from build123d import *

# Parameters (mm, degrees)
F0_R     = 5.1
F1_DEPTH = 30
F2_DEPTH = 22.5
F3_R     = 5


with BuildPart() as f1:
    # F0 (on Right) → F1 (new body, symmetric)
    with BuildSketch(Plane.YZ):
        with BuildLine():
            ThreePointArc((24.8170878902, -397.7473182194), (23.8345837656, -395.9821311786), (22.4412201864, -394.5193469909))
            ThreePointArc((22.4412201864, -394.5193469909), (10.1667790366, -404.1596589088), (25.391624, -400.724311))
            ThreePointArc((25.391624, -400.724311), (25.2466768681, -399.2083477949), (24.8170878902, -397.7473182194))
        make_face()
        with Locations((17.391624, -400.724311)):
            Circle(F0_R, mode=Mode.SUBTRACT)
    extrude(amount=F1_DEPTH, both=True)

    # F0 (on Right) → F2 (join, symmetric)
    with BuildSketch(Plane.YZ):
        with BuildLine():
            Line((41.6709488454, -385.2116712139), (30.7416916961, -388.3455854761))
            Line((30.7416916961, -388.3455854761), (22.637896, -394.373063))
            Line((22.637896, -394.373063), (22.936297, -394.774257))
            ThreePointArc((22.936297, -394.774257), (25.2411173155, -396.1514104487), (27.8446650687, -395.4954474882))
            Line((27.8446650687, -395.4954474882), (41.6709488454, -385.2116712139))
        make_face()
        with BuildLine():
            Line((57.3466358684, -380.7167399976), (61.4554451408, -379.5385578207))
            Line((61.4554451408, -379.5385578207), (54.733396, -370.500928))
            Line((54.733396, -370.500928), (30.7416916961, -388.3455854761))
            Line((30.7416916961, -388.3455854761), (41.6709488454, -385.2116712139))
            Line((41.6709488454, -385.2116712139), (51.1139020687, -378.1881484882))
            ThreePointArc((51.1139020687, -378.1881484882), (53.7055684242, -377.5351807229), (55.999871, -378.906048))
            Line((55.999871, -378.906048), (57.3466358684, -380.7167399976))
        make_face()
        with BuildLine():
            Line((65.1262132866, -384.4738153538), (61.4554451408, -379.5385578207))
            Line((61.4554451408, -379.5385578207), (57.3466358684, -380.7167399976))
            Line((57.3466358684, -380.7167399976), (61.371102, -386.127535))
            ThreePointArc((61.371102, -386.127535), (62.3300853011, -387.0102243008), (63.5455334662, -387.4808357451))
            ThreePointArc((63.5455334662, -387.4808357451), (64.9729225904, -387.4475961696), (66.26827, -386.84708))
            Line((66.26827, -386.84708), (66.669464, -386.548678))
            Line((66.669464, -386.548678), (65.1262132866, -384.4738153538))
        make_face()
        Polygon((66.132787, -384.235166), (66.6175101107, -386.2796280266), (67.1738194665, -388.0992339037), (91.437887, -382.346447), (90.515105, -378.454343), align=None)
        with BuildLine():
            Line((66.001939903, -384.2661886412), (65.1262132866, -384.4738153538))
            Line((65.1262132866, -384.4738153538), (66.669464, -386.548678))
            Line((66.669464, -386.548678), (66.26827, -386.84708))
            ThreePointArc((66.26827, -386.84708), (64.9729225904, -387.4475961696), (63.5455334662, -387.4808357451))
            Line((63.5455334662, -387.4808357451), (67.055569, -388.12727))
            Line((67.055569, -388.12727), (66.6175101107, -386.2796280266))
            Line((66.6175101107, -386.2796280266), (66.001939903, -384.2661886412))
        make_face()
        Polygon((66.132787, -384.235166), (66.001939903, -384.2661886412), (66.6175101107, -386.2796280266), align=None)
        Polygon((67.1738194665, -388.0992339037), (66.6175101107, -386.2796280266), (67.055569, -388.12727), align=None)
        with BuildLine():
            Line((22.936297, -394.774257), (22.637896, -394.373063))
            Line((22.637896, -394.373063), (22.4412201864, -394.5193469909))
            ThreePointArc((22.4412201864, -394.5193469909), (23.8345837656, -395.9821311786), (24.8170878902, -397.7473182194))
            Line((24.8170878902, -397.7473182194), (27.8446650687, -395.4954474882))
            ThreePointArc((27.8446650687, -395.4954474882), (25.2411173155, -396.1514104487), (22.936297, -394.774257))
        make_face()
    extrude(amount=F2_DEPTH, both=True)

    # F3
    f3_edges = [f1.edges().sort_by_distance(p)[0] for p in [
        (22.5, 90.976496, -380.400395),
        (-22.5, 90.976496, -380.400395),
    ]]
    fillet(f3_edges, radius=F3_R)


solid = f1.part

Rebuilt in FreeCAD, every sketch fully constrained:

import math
import FreeCAD as App
import Part
import Sketcher

V = App.Vector
Q = App.Units.Quantity


def edges_at(feature, points):
    """Names of the edges that pass closest to the given points."""
    edges = feature.Shape.Edges
    near = lambda p: min(range(len(edges)), key=lambda i: edges[i].distToShape(Part.Vertex(*p))[0])
    return sorted({f"Edge{near(p) + 1}" for p in points})

doc = App.newDocument("Part")
params = doc.addObject("Spreadsheet::Sheet", "Params")
for row, (alias, value) in enumerate([
    ("sketch1_radius", "8 mm"),
    ("sketch1_diameter", "10.2 mm"),
    ("pad1_length", "60 mm"),
    ("sketch2_radius", "8 mm"),
    ("sketch2_radius2", "3.500001 mm"),
    ("sketch2_length", "4 mm"),
    ("pad2_length", "45 mm"),
    ("fillet_radius", "5 mm"),
], start=1):
    params.set(f"A{row}", alias)
    params.set(f"B{row}", "=" + value)
    params.setAlias(f"B{row}", alias)

body = doc.addObject("PartDesign::Body", "Body")

# Sketch on YZ plane
sketch1 = doc.addObject("Sketcher::SketchObject", "Sketch")
body.addObject(sketch1)
sketch1.AttachmentSupport = (doc.YZ_Plane, [""])
sketch1.MapMode = "FlatFace"
sketch1.addGeometry([
    Part.ArcOfCircle(Part.Circle(V(17.4, -400.7, 0), V(0, 0, 1), 8), math.radians(22), math.radians(51)),
    Part.ArcOfCircle(Part.Circle(V(17.4, -400.7, 0), V(0, 0, 1), 8), math.radians(51), math.radians(360)),
    Part.ArcOfCircle(Part.Circle(V(17.4, -400.7, 0), V(0, 0, 1), 8), math.radians(0), math.radians(22)),
    Part.Circle(V(17.4, -400.7, 0), V(0, 0, 1), 5.1),
], False)
sketch1.addConstraint([
    Sketcher.Constraint("Tangent", 0, 2, 1, 1),
    Sketcher.Constraint("Tangent", 1, 2, 2, 1),
    Sketcher.Constraint("Tangent", 2, 2, 0, 1),
    Sketcher.Constraint("Coincident", 3, 3, 0, 3),
    Sketcher.Constraint("Horizontal", 3, 3, 1, 2),
    Sketcher.Constraint("Radius", 0, Q("8 mm")),
    Sketcher.Constraint("Diameter", 3, Q("10.2 mm")),
    Sketcher.Constraint("DistanceY", 0, 3, -1, 1, Q("400.724311 mm")),
    Sketcher.Constraint("DistanceX", -1, 1, 0, 2, Q("22.44122 mm")),
    Sketcher.Constraint("DistanceY", 2, 2, -1, 1, Q("397.747318 mm")),
    Sketcher.Constraint("DistanceY", 2, 2, 0, 2, Q("3.227971 mm")),
])
sketch1.setExpression("Constraints[5]", "Params.sketch1_radius")
sketch1.setExpression("Constraints[6]", "Params.sketch1_diameter")
pad1 = doc.addObject("PartDesign::Pad", "Pad")
body.addObject(pad1)
pad1.Profile = sketch1
pad1.setExpression("Length", "Params.pad1_length")
pad1.Midplane = True

# Sketch on YZ plane
sketch2 = doc.addObject("Sketcher::SketchObject", "Sketch001")
body.addObject(sketch2)
sketch2.AttachmentSupport = (doc.YZ_Plane, [""])
sketch2.MapMode = "FlatFace"
sketch2.addGeometry([
    Part.LineSegment(V(30.741692, -388.345585, 0), V(22.637896, -394.373063, 0)),  # 0
    Part.LineSegment(V(22.637896, -394.373063, 0), V(22.44122, -394.519347, 0)),  # 1
    Part.ArcOfCircle(Part.Circle(V(17.391624, -400.724311, 0), V(0, 0, 1), 8), math.radians(21.846676), math.radians(50.861323)),  # 2
    Part.LineSegment(V(24.817088, -397.747318, 0), V(27.844665, -395.495447, 0)),  # 3
    Part.LineSegment(V(27.844665, -395.495447, 0), V(41.670949, -385.211671, 0)),  # 4
    Part.LineSegment(V(41.670949, -385.211671, 0), V(51.113902, -378.188148, 0)),  # 5
    Part.ArcOfCircle(Part.Circle(V(53.197937, -380.990082, 0), V(0, 0, 1), 3.491995), math.radians(36.641283), math.radians(126.641301)),  # 6
    Part.LineSegment(V(55.999871, -378.906048, 0), V(57.346636, -380.71674, 0)),  # 7
    Part.LineSegment(V(57.346636, -380.71674, 0), V(61.371102, -386.127535, 0)),  # 8
    Part.ArcOfCircle(Part.Circle(V(64.179459, -384.038723, 0), V(0, 0, 1), 3.500001), math.radians(-143.358697), math.radians(-100.435088)),  # 9
    Part.LineSegment(V(63.545533, -387.480836, 0), V(67.055569, -388.12727, 0)),  # 10
    Part.LineSegment(V(67.055569, -388.12727, 0), V(67.173819, -388.099234, 0)),  # 11
    Part.LineSegment(V(67.173819, -388.099234, 0), V(91.437887, -382.346447, 0)),  # 12
    Part.LineSegment(V(91.437887, -382.346447, 0), V(90.515105, -378.454343, 0)),  # 13
    Part.LineSegment(V(90.515105, -378.454343, 0), V(66.132787, -384.235166, 0)),  # 14
    Part.LineSegment(V(66.132787, -384.235166, 0), V(66.00194, -384.266189, 0)),  # 15
    Part.LineSegment(V(66.00194, -384.266189, 0), V(65.126213, -384.473815, 0)),  # 16
    Part.LineSegment(V(65.126213, -384.473815, 0), V(61.455445, -379.538558, 0)),  # 17
    Part.LineSegment(V(61.455445, -379.538558, 0), V(54.733396, -370.500928, 0)),  # 18
    Part.LineSegment(V(54.733396, -370.500928, 0), V(30.741692, -388.345585, 0)),  # 19
], False)
sketch2.addConstraint([
    Sketcher.Constraint("Coincident", 0, 2, 1, 1),
    Sketcher.Constraint("Coincident", 1, 2, 2, 2),
    Sketcher.Constraint("Coincident", 2, 1, 3, 1),
    Sketcher.Constraint("Coincident", 3, 2, 4, 1),
    Sketcher.Constraint("Coincident", 4, 2, 5, 1),
    Sketcher.Constraint("Coincident", 5, 2, 6, 2),
    Sketcher.Constraint("Coincident", 6, 1, 7, 1),
    Sketcher.Constraint("Coincident", 7, 2, 8, 1),
    Sketcher.Constraint("Coincident", 8, 2, 9, 1),
    Sketcher.Constraint("Coincident", 9, 2, 10, 1),
    Sketcher.Constraint("Coincident", 10, 2, 11, 1),
    Sketcher.Constraint("Coincident", 11, 2, 12, 1),
    Sketcher.Constraint("Coincident", 12, 2, 13, 1),
    Sketcher.Constraint("Coincident", 13, 2, 14, 1),
    Sketcher.Constraint("Coincident", 14, 2, 15, 1),
    Sketcher.Constraint("Coincident", 15, 2, 16, 1),
    Sketcher.Constraint("Coincident", 16, 2, 17, 1),
    Sketcher.Constraint("Coincident", 17, 2, 18, 1),
    Sketcher.Constraint("Coincident", 18, 2, 19, 1),
    Sketcher.Constraint("Coincident", 19, 2, 0, 1),
    Sketcher.Constraint("Radius", 2, Q("8 mm")),
    Sketcher.Constraint("Radius", 9, Q("3.500001 mm")),
    Sketcher.Constraint("Distance", 13, Q("4 mm")),
    Sketcher.Constraint("Radius", 6, Q("3.491995 mm")),
    Sketcher.Constraint("DistanceY", 3, 2, 1, 2, Q("0.9761 mm")),
    Sketcher.Constraint("DistanceY", 3, 2, 5, 2, Q("17.307299 mm")),
    Sketcher.Constraint("DistanceY", 6, 1, 5, 2, Q("0.7179 mm")),
    Sketcher.Constraint("DistanceX", 6, 3, 7, 2, Q("4.148699 mm")),
    Sketcher.Constraint("DistanceX", 5, 2, 8, 2, Q("10.2572 mm")),
    Sketcher.Constraint("DistanceY", 9, 2, 8, 2, Q("1.353301 mm")),
    Sketcher.Constraint("DistanceY", 11, 2, 9, 2, Q("0.618398 mm")),
    Sketcher.Constraint("Distance", 4, Q("17.23143 mm")),
    Sketcher.Constraint("Distance", 5, Q("11.76857 mm")),
    Sketcher.Constraint("Distance", 7, Q("2.25663 mm")),
    Sketcher.Constraint("Distance", 8, Q("6.743369 mm")),
    Sketcher.Constraint("Distance", 11, Q("0.121529 mm")),
    Sketcher.Constraint("Distance", 12, Q("24.93671 mm")),
    Sketcher.Constraint("Distance", 14, Q("25.058239 mm")),
    Sketcher.Constraint("DistanceY", 2, 3, -1, 1, Q("400.724311 mm")),
    Sketcher.Constraint("DistanceY", 6, 3, -1, 1, Q("380.990082 mm")),
    Sketcher.Constraint("DistanceX", -1, 1, 9, 3, Q("64.179459 mm")),
    Sketcher.Constraint("DistanceX", -1, 1, 1, 2, Q("22.44122 mm")),
    Sketcher.Constraint("DistanceY", 2, 1, -1, 1, Q("397.747318 mm")),
    Sketcher.Constraint("DistanceX", -1, 1, 4, 2, Q("41.670949 mm")),
    Sketcher.Constraint("DistanceY", 4, 2, -1, 1, Q("385.211671 mm")),
    Sketcher.Constraint("DistanceY", 5, 2, -1, 1, Q("378.188148 mm")),
    Sketcher.Constraint("DistanceX", -1, 1, 10, 2, Q("67.055569 mm")),
    Sketcher.Constraint("DistanceY", 10, 2, -1, 1, Q("388.12727 mm")),
    Sketcher.Constraint("DistanceX", -1, 1, 15, 2, Q("66.00194 mm")),
    Sketcher.Constraint("DistanceY", 15, 2, -1, 1, Q("384.266189 mm")),
    Sketcher.Constraint("DistanceY", 18, 2, -1, 1, Q("370.500928 mm")),
    Sketcher.Constraint("DistanceX", -1, 1, 19, 2, Q("30.741692 mm")),
    Sketcher.Constraint("DistanceY", 2, 3, 0, 2, Q("6.351248 mm")),
    Sketcher.Constraint("DistanceX", 0, 2, 6, 3, Q("30.560041 mm")),
    Sketcher.Constraint("DistanceX", 9, 3, 12, 2, Q("27.258428 mm")),
    Sketcher.Constraint("DistanceX", 13, 2, 12, 2, Q("0.922782 mm")),
    Sketcher.Constraint("DistanceX", 9, 3, 14, 2, Q("1.953328 mm")),
    Sketcher.Constraint("DistanceY", 16, 2, 14, 2, Q("0.238649 mm")),
    Sketcher.Constraint("DistanceX", 9, 2, 16, 2, Q("1.58068 mm")),
    Sketcher.Constraint("DistanceX", 7, 2, 17, 2, Q("4.108809 mm")),
    Sketcher.Constraint("DistanceY", 17, 2, 6, 1, Q("0.63251 mm")),
    Sketcher.Constraint("DistanceX", 18, 2, 7, 2, Q("2.61324 mm")),
    Sketcher.Constraint("DistanceY", 1, 2, 19, 2, Q("6.173762 mm")),
])
sketch2.setExpression("Constraints[20]", "Params.sketch2_radius")
sketch2.setExpression("Constraints[21]", "Params.sketch2_radius2")
sketch2.setExpression("Constraints[22]", "Params.sketch2_length")
pad2 = doc.addObject("PartDesign::Pad", "Pad001")
body.addObject(pad2)
pad2.Profile = sketch2
pad2.setExpression("Length", "Params.pad2_length")
pad2.Midplane = True
doc.recompute()

fillet = doc.addObject("PartDesign::Fillet", "Fillet")
body.addObject(fillet)
fillet.Base = (pad2, edges_at(pad2, [(22.5, 90.976, -380.4), (-22.5, 90.976, -380.4)]))
fillet.setExpression("Radius", "Params.fillet_radius")

doc.recompute()
